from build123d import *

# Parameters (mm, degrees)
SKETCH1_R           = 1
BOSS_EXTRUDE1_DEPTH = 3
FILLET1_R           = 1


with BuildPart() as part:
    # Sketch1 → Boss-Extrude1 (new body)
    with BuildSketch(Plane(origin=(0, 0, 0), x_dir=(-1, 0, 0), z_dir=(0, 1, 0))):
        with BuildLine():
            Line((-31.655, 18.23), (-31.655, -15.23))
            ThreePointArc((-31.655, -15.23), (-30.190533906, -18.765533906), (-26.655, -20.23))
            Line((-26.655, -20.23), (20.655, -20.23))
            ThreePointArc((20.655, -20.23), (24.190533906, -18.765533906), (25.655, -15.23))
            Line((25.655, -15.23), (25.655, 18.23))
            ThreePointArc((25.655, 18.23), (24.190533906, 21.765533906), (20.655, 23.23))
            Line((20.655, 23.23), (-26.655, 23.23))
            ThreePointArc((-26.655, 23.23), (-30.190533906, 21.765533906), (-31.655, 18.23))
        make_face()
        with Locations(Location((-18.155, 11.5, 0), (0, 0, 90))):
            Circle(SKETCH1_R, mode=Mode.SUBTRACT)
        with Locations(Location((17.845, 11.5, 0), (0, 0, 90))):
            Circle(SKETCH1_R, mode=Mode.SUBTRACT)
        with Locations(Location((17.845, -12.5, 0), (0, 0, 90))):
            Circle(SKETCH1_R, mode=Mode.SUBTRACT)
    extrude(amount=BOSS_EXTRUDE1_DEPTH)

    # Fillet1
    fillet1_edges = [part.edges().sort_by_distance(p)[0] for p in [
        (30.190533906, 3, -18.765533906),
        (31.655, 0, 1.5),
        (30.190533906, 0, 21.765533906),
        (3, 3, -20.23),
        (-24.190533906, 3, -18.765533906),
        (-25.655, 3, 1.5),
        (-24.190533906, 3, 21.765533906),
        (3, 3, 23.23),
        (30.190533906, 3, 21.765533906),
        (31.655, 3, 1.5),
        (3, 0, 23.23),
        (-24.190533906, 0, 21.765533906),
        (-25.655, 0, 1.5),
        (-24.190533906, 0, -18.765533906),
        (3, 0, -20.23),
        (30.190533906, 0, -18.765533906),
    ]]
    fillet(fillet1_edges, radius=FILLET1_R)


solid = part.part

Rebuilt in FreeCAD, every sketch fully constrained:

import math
import FreeCAD as App
import Part
import Sketcher

V = App.Vector


def edges_at(feature, points):
    """Names of the edges that pass closest to the given points."""
    edges = feature.Shape.Edges
    near = lambda p: min(range(len(edges)), key=lambda i: edges[i].distToShape(Part.Vertex(*p))[0])
    return sorted({f"Edge{near(p) + 1}" for p in points})

doc = App.newDocument("Part")
body = doc.addObject("PartDesign::Body", "Body")

# Sketch on XZ plane
sketch1 = body.newObject("Sketcher::SketchObject", "Sketch")
sketch1.AttachmentSupport = (doc.getObject("XZ_Plane"), [""])
sketch1.MapMode = "FlatFace"
sketch1.addGeometry([
    Part.LineSegment(V(31.7, 18.2, 0), V(31.7, -15.2, 0)),  # 0
    Part.ArcOfCircle(Part.Circle(V(26.7, -15.2, 0), V(0, 0, 1), 5), math.radians(-90), math.radians(0)),  # 1
    Part.LineSegment(V(26.7, -20.2, 0), V(-20.7, -20.2, 0)),  # 2
    Part.ArcOfCircle(Part.Circle(V(-20.7, -15.2, 0), V(0, 0, 1), 5), math.radians(180), math.radians(270)),  # 3
    Part.LineSegment(V(-25.7, -15.2, 0), V(-25.7, 18.2, 0)),  # 4
    Part.ArcOfCircle(Part.Circle(V(-20.7, 18.2, 0), V(0, 0, 1), 5), math.radians(90), math.radians(180)),  # 5
    Part.LineSegment(V(-20.7, 23.2, 0), V(26.7, 23.2, 0)),  # 6
    Part.ArcOfCircle(Part.Circle(V(26.7, 18.2, 0), V(0, 0, 1), 5), math.radians(0), math.radians(90)),  # 7
    Part.Circle(V(-17.8, -12.5, 0), V(0, 0, 1), 1),  # 8
    Part.Circle(V(18.2, 11.5, 0), V(0, 0, 1), 1),  # 9
    Part.Circle(V(-17.8, 11.5, 0), V(0, 0, 1), 1),  # 10
], False)
sketch1.addConstraint([
    Sketcher.Constraint("Tangent", 0, 2, 1, 2),
    Sketcher.Constraint("Tangent", 1, 1, 2, 1),
    Sketcher.Constraint("Tangent", 2, 2, 3, 2),
    Sketcher.Constraint("Tangent", 3, 1, 4, 1),
    Sketcher.Constraint("Tangent", 4, 2, 5, 2),
    Sketcher.Constraint("Tangent", 5, 1, 6, 1),
    Sketcher.Constraint("Tangent", 6, 2, 7, 2),
    Sketcher.Constraint("Tangent", 7, 1, 0, 1),
    Sketcher.Constraint("Vertical", 0),
    Sketcher.Constraint("Horizontal", 2),
    Sketcher.Constraint("Vertical", 4),
    Sketcher.Constraint("Horizontal", 6),
    Sketcher.Constraint("Equal", 1, 3),
    Sketcher.Constraint("Equal", 3, 5),
    Sketcher.Constraint("Equal", 5, 7),
    Sketcher.Constraint("Equal", 8, 9),
    Sketcher.Constraint("Equal", 9, 10),
    Sketcher.Constraint("Horizontal", 9, 3, 10, 3),
    Sketcher.Constraint("Vertical", 8, 3, 10, 3),
    Sketcher.Constraint("Diameter", 8, 2.0),
    Sketcher.Constraint("Radius", 1, 5.0),
    Sketcher.Constraint("DistanceX", 8, 3, 9, 3, 36.0),
    Sketcher.Constraint("DistanceY", 8, 3, 9, 3, 24.0),
    Sketcher.Constraint("DistanceX", 2, 2, 2, 1, 47.31),
    Sketcher.Constraint("DistanceY", 0, 2, 0, 1, 33.46),
    Sketcher.Constraint("DistanceY", 8, 3, -1, 1, 12.5),
    Sketcher.Constraint("DistanceX", 8, 3, 1, 3, 44.5),
    Sketcher.Constraint("DistanceY", 1, 3, -1, 1, 15.23),
    Sketcher.Constraint("DistanceX", -1, 1, 1, 3, 26.655),
])
pad1 = body.newObject("PartDesign::Pad", "Pad")
pad1.Profile = sketch1
pad1.Length = 3
pad1.Reversed = True
doc.recompute()

fillet = body.newObject("PartDesign::Fillet", "Fillet")
fillet.Base = (pad1, edges_at(pad1, [
    (30.191, 3, -18.766),
    (31.655, 0, 1.5),
    (30.191, 0, 21.766),
    (3, 3, -20.23),
    (-24.191, 3, -18.766),
    (-25.655, 3, 1.5),
    (-24.191, 3, 21.766),
    (3, 3, 23.23),
    (30.191, 3, 21.766),
    (31.655, 3, 1.5),
    (3, 0, 23.23),
    (-24.191, 0, 21.766),
    (-25.655, 0, 1.5),
    (-24.191, 0, -18.766),
    (3, 0, -20.23),
    (30.191, 0, -18.766),
]))
fillet.Radius = 1

doc.recompute()
